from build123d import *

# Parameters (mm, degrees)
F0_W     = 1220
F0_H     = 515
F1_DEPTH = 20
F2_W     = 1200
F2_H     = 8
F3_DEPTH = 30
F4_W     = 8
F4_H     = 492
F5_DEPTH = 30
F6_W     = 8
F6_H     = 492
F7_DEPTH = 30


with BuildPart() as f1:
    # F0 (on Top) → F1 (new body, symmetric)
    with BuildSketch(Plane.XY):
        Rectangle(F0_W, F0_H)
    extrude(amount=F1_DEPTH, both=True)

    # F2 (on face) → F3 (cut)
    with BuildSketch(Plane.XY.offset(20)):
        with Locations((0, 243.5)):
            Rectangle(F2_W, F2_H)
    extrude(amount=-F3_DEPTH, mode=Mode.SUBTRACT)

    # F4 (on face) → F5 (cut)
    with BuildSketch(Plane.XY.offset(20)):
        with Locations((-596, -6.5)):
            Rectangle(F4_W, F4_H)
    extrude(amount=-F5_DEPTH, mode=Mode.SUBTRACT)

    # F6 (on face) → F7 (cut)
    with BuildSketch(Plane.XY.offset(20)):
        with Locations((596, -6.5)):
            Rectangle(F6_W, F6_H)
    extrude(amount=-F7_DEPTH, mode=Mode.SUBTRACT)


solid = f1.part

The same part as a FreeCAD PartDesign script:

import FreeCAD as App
import Part
import Sketcher

V = App.Vector
Q = App.Units.Quantity


def add_polygon(sketch, points):
    """Adds a closed chain of lines whose ends are joined by coincident constraints."""
    first, n = sketch.GeometryCount, len(points)
    for a, b in zip(points, points[1:] + points[:1]):
        sketch.addGeometry(Part.LineSegment(App.Vector(*a, 0), App.Vector(*b, 0)), False)
    for i in range(n):
        sketch.addConstraint(Sketcher.Constraint("Coincident", first + i, 2, first + (i + 1) % n, 1))

doc = App.newDocument("Part")
params = doc.addObject("Spreadsheet::Sheet", "Params")
for row, (alias, value) in enumerate([
    ("sketch1_width", "1220 mm"),
    ("sketch1_height", "515 mm"),
    ("pad1_length", "40 mm"),
    ("sketch2_width", "1200 mm"),
    ("sketch2_height", "8 mm"),
    ("pocket1_length", "30 mm"),
    ("sketch3_width", "8 mm"),
    ("sketch3_height", "492 mm"),
    ("pocket2_length", "30 mm"),
    ("sketch4_width", "8 mm"),
    ("sketch4_height", "492 mm"),
    ("pocket3_length", "30 mm"),
], start=1):
    params.set(f"A{row}", alias)
    params.set(f"B{row}", "=" + value)
    params.setAlias(f"B{row}", alias)

body = doc.addObject("PartDesign::Body", "Body")

# Sketch on XY plane
sketch1 = body.newObject("Sketcher::SketchObject", "Sketch")
sketch1.AttachmentSupport = (doc.getObject("XY_Plane"), [""])
sketch1.MapMode = "FlatFace"
add_polygon(sketch1, [(-610, 257.5), (-610, -257.5), (610, -257.5), (610, 257.5)])  # lines 0-3
sketch1.addConstraint(Sketcher.Constraint("Vertical", 0))
sketch1.addConstraint(Sketcher.Constraint("Horizontal", 1))
sketch1.addConstraint(Sketcher.Constraint("Vertical", 2))
sketch1.addConstraint(Sketcher.Constraint("Horizontal", 3))
sketch1.addConstraint(Sketcher.Constraint("Symmetric", 0, 2, 2, 2, -1, 1))
sketch1.addConstraint(Sketcher.Constraint("DistanceX", 1, 1, 1, 2, Q("1220 mm")))
sketch1.addConstraint(Sketcher.Constraint("DistanceY", 0, 2, 0, 1, Q("515 mm")))
sketch1.setExpression("Constraints[9]", "Params.sketch1_width")
sketch1.setExpression("Constraints[10]", "Params.sketch1_height")
pad1 = body.newObject("PartDesign::Pad", "Pad")
pad1.Profile = sketch1
pad1.setExpression("Length", "Params.pad1_length")
pad1.Midplane = True

# Sketch on XY plane
sketch2 = body.newObject("Sketcher::SketchObject", "Sketch001")
sketch2.AttachmentSupport = (doc.getObject("XY_Plane"), [""])
sketch2.MapMode = "FlatFace"
sketch2.AttachmentOffset = App.Placement(V(0, 0, 20), App.Rotation())
add_polygon(sketch2, [(-600, 247.5), (-600, 239.5), (600, 239.5), (600, 247.5)])  # lines 0-3
sketch2.addConstraint(Sketcher.Constraint("Vertical", 0))
sketch2.addConstraint(Sketcher.Constraint("Horizontal", 1))
sketch2.addConstraint(Sketcher.Constraint("Vertical", 2))
sketch2.addConstraint(Sketcher.Constraint("Horizontal", 3))
sketch2.addConstraint(Sketcher.Constraint("DistanceX", 1, 1, 1, 2, Q("1200 mm")))
sketch2.addConstraint(Sketcher.Constraint("DistanceY", 0, 2, 0, 1, Q("8 mm")))
sketch2.addConstraint(Sketcher.Constraint("DistanceX", 0, 2, -1, 1, Q("600 mm")))
sketch2.addConstraint(Sketcher.Constraint("DistanceY", -1, 1, 0, 2, Q("239.5 mm")))
sketch2.setExpression("Constraints[8]", "Params.sketch2_width")
sketch2.setExpression("Constraints[9]", "Params.sketch2_height")
pocket1 = body.newObject("PartDesign::Pocket", "Pocket")
pocket1.Profile = sketch2
pocket1.setExpression("Length", "Params.pocket1_length")

# Sketch on XY plane
sketch3 = body.newObject("Sketcher::SketchObject", "Sketch002")
sketch3.AttachmentSupport = (doc.getObject("XY_Plane"), [""])
sketch3.MapMode = "FlatFace"
sketch3.AttachmentOffset = App.Placement(V(0, 0, 20), App.Rotation())
add_polygon(sketch3, [(-600, 239.5), (-600, -252.5), (-592, -252.5), (-592, 239.5)])  # lines 0-3
sketch3.addConstraint(Sketcher.Constraint("Vertical", 0))
sketch3.addConstraint(Sketcher.Constraint("Horizontal", 1))
sketch3.addConstraint(Sketcher.Constraint("Vertical", 2))
sketch3.addConstraint(Sketcher.Constraint("Horizontal", 3))
sketch3.addConstraint(Sketcher.Constraint("DistanceX", 1, 1, 1, 2, Q("8 mm")))
sketch3.addConstraint(Sketcher.Constraint("DistanceY", 0, 2, 0, 1, Q("492 mm")))
sketch3.addConstraint(Sketcher.Constraint("DistanceX", 0, 2, -1, 1, Q("600 mm")))
sketch3.addConstraint(Sketcher.Constraint("DistanceY", 0, 2, -1, 1, Q("252.5 mm")))
sketch3.setExpression("Constraints[8]", "Params.sketch3_width")
sketch3.setExpression("Constraints[9]", "Params.sketch3_height")
pocket2 = body.newObject("PartDesign::Pocket", "Pocket001")
pocket2.Profile = sketch3
pocket2.setExpression("Length", "Params.pocket2_length")

# Sketch on XY plane
sketch4 = body.newObject("Sketcher::SketchObject", "Sketch003")
sketch4.AttachmentSupport = (doc.getObject("XY_Plane"), [""])
sketch4.MapMode = "FlatFace"
sketch4.AttachmentOffset = App.Placement(V(0, 0, 20), App.Rotation())
add_polygon(sketch4, [(592, 239.5), (592, -252.5), (600, -252.5), (600, 239.5)])  # lines 0-3
sketch4.addConstraint(Sketcher.Constraint("Vertical", 0))
sketch4.addConstraint(Sketcher.Constraint("Horizontal", 1))
sketch4.addConstraint(Sketcher.Constraint("Vertical", 2))
sketch4.addConstraint(Sketcher.Constraint("Horizontal", 3))
sketch4.addConstraint(Sketcher.Constraint("DistanceX", 1, 1, 1, 2, Q("8 mm")))
sketch4.addConstraint(Sketcher.Constraint("DistanceY", 0, 2, 0, 1, Q("492 mm")))
sketch4.addConstraint(Sketcher.Constraint("DistanceX", -1, 1, 0, 2, Q("592 mm")))
sketch4.addConstraint(Sketcher.Constraint("DistanceY", 0, 2, -1, 1, Q("252.5 mm")))
sketch4.setExpression("Constraints[8]", "Params.sketch4_width")
sketch4.setExpression("Constraints[9]", "Params.sketch4_height")
pocket3 = body.newObject("PartDesign::Pocket", "Pocket002")
pocket3.Profile = sketch4
pocket3.setExpression("Length", "Params.pocket3_length")

doc.recompute()
